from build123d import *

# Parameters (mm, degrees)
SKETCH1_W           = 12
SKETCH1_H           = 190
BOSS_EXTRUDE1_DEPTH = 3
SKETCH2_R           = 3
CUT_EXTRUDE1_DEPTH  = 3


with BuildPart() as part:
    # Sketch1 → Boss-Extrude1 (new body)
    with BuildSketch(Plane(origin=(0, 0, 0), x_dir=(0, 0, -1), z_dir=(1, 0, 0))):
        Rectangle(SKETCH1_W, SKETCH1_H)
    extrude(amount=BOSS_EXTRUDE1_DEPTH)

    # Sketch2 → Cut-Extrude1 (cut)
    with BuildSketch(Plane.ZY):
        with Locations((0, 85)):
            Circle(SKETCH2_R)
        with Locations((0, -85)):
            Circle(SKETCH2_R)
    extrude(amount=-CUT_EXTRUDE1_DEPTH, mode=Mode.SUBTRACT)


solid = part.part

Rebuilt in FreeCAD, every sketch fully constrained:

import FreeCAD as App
import Part
import Sketcher


def add_polygon(sketch, points):
    """Adds a closed chain of lines whose ends are joined by coincident constraints."""
    first, n = sketch.GeometryCount, len(points)
    for a, b in zip(points, points[1:] + points[:1]):
        sketch.addGeometry(Part.LineSegment(App.Vector(*a, 0), App.Vector(*b, 0)), False)
    for i in range(n):
        sketch.addConstraint(Sketcher.Constraint("Coincident", first + i, 2, first + (i + 1) % n, 1))

doc = App.newDocument("Part")
body = doc.addObject("PartDesign::Body", "Body")

sketch1 = body.newObject("Sketcher::SketchObject", "Sketch")
sketch1.AttachmentSupport = (doc.getObject("YZ_Plane"), [""])
sketch1.MapMode = "FlatFace"
add_polygon(sketch1, [(95, 6), (-95, 6), (-95, -6), (95, -6)])
sketch1.addConstraint([
    Sketcher.Constraint("Horizontal", 0),
    Sketcher.Constraint("Vertical", 1),
    Sketcher.Constraint("Horizontal", 2),
    Sketcher.Constraint("Vertical", 3),
    Sketcher.Constraint("Symmetric", 0, 2, 2, 2, -1, 1),
    Sketcher.Constraint("DistanceX", 0, 2, 0, 1, 190.0),
    Sketcher.Constraint("DistanceY", 1, 2, 1, 1, 12.0),
])
pad1 = body.newObject("PartDesign::Pad", "Pad")
pad1.Profile = sketch1
pad1.Length = 3

sketch2 = body.newObject("Sketcher::SketchObject", "Sketch001")
sketch2.AttachmentSupport = (doc.getObject("YZ_Plane"), [""])
sketch2.MapMode = "FlatFace"
sketch2.addGeometry([
    Part.Circle(App.Vector(85, 0, 0), App.Vector(0, 0, 1), 3),
    Part.Circle(App.Vector(-85, 0, 0), App.Vector(0, 0, 1), 3),
], False)
sketch2.addConstraint([
    Sketcher.Constraint("Equal", 0, 1),
    Sketcher.Constraint("Symmetric", 0, 3, 1, 3, -1, 1),
    Sketcher.Constraint("PointOnObject", 0, 3, -1),
    Sketcher.Constraint("Diameter", 0, 6.0),
    Sketcher.Constraint("DistanceX", -1, 1, 0, 3, 85.0),
])
pocket1 = body.newObject("PartDesign::Pocket", "Pocket")
pocket1.Profile = sketch2
pocket1.Length = 3
pocket1.Reversed = True

doc.recompute()
